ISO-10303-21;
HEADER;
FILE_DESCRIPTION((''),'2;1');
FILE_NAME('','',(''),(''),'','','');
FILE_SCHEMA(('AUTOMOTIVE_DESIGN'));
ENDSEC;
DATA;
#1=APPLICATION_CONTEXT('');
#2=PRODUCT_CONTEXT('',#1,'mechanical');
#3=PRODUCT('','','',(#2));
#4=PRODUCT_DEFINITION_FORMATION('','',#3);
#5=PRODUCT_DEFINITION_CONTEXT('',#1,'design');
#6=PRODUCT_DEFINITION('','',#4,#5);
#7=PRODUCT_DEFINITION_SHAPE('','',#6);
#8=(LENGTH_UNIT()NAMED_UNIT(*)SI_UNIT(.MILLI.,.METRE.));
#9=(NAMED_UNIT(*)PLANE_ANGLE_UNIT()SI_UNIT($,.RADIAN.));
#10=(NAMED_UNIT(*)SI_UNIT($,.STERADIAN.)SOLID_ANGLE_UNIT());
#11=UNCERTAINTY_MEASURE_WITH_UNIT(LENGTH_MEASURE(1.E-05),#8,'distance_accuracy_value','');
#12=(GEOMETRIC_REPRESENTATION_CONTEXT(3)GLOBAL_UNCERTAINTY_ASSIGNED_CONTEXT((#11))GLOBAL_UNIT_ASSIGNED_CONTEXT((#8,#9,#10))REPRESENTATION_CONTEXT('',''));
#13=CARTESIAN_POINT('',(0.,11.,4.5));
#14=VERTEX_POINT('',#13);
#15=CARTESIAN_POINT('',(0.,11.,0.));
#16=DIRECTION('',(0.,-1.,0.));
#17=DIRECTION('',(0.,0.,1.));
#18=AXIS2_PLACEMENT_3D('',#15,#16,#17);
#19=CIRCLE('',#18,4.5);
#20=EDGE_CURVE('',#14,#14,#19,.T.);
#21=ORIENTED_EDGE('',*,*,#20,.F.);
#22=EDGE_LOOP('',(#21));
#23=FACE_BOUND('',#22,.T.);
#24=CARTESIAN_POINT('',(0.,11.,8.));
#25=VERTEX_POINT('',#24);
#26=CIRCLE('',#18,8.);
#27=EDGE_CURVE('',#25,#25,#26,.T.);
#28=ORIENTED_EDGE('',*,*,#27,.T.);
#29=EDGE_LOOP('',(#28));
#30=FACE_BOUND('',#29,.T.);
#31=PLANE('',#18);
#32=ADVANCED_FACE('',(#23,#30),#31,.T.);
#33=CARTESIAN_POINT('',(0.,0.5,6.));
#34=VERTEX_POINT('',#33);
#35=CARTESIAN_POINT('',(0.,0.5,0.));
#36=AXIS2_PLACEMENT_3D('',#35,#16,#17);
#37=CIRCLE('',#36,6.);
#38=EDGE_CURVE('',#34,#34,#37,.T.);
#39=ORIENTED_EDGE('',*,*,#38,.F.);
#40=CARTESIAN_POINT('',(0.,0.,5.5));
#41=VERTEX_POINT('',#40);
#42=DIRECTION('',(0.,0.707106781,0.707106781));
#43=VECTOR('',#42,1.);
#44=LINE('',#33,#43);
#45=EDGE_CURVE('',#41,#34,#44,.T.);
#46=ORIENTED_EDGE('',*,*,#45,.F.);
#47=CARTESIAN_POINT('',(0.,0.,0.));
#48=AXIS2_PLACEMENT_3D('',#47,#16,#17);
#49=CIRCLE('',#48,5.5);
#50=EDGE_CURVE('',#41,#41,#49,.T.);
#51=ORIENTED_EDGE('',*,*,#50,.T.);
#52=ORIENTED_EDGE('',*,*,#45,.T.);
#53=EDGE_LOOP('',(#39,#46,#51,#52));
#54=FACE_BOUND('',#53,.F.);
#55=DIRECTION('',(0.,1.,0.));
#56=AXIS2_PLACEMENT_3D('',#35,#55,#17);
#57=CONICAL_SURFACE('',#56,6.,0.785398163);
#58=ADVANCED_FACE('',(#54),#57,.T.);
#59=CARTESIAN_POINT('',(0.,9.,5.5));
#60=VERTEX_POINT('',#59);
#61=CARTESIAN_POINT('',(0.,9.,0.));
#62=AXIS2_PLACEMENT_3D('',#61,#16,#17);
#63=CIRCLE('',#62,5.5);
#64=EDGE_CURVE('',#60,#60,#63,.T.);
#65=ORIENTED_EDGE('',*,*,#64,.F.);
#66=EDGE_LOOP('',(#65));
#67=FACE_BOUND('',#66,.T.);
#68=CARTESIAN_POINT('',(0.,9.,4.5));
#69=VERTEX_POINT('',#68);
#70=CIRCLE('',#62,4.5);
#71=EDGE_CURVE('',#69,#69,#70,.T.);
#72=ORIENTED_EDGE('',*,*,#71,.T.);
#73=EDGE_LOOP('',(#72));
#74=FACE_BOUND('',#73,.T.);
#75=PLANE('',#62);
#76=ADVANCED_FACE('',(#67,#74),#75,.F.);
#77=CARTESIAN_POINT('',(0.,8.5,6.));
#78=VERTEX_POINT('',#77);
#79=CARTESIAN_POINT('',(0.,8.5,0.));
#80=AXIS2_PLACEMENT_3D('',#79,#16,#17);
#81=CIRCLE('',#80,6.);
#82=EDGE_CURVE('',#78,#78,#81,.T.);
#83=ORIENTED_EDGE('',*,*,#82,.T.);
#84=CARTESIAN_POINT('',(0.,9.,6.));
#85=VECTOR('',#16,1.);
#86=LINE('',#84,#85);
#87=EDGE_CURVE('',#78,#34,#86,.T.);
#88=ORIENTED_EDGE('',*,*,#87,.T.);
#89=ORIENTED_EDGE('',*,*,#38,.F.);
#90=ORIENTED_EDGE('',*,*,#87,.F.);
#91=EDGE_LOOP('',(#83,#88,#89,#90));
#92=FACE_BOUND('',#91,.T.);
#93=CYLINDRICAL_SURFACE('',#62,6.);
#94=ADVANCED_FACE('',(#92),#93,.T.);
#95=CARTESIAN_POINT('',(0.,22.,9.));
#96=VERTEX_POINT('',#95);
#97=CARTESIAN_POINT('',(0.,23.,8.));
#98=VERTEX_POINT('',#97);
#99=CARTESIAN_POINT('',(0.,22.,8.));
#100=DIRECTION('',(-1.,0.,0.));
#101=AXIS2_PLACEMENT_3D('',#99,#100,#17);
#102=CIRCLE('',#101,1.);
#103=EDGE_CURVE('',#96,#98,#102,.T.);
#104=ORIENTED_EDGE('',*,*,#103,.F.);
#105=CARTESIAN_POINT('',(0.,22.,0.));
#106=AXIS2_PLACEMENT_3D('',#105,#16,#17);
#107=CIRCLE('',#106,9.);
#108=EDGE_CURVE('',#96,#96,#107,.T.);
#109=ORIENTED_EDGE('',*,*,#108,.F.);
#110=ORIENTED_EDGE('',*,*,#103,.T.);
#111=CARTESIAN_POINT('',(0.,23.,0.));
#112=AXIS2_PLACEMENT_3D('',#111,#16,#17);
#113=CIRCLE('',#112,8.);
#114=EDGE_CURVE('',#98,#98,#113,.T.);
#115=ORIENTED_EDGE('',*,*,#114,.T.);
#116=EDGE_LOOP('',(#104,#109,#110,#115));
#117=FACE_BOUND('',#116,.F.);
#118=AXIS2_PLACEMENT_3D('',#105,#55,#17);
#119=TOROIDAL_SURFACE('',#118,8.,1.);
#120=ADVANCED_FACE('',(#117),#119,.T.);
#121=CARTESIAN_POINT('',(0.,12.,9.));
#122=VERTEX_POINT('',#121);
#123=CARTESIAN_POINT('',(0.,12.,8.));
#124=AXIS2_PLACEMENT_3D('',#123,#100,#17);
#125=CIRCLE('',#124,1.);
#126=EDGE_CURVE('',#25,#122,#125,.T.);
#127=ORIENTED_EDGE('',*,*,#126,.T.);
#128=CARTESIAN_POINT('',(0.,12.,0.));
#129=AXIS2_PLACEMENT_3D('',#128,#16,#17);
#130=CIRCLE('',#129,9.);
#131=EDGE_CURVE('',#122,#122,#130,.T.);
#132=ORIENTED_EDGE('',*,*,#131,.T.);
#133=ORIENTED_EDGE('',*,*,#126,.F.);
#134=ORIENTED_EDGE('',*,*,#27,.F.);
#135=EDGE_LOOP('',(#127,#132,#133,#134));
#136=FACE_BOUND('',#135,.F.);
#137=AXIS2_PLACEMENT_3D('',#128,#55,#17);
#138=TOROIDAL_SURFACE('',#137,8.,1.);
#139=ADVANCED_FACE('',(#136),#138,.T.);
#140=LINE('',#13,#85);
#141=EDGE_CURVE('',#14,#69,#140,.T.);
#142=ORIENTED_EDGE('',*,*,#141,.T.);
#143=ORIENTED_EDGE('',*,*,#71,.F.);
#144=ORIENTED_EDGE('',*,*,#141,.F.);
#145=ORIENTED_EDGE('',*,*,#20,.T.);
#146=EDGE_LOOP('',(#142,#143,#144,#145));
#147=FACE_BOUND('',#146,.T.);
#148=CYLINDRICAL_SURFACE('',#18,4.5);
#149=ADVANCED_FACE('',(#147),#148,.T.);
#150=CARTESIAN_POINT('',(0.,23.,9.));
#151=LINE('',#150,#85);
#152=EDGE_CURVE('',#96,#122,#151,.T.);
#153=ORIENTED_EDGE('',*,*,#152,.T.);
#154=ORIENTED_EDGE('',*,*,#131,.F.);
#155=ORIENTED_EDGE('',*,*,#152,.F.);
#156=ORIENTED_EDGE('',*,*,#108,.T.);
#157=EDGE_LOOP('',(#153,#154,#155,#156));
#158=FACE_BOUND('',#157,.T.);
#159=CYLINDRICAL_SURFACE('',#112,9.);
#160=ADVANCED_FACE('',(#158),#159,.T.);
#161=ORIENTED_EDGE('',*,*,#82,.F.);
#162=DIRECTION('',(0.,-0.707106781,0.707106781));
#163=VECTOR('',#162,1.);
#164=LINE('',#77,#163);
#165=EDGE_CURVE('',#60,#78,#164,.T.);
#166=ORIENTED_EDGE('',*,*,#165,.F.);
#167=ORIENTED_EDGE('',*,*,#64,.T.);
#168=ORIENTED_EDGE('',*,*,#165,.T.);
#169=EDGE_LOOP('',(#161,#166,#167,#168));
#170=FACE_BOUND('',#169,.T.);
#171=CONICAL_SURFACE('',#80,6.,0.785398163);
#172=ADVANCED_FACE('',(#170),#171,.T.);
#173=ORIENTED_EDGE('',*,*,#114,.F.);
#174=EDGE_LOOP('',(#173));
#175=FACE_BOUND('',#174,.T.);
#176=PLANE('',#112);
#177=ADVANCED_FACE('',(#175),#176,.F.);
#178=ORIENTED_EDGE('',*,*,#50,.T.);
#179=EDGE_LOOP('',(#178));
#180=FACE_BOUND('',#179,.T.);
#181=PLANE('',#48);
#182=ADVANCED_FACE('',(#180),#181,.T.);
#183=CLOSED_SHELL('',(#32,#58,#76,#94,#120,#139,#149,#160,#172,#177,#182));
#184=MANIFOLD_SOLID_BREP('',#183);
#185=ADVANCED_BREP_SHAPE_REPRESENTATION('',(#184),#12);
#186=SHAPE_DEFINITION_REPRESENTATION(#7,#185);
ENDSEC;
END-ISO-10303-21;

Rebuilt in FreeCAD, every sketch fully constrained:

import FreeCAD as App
import Part
import Sketcher
Q = App.Units.Quantity


def edges_at(feature, points):
    """Names of the edges that pass closest to the given points."""
    edges = feature.Shape.Edges
    near = lambda p: min(range(len(edges)), key=lambda i: edges[i].distToShape(Part.Vertex(*p))[0])
    return sorted({f"Edge{near(p) + 1}" for p in points})

doc = App.newDocument("Part")
body = doc.addObject("PartDesign::Body", "Body")

# Sketch on YZ plane
sketch1 = body.newObject("Sketcher::SketchObject", "Sketch")
sketch1.AttachmentSupport = (doc.getObject("YZ_Plane"), [""])
sketch1.MapMode = "FlatFace"
sketch1.addGeometry([
    Part.LineSegment(App.Vector(0, 6, 0), App.Vector(0, 0, 0)),  # 0
    Part.LineSegment(App.Vector(0, 0, 0), App.Vector(23, 0, 0)),  # 1
    Part.LineSegment(App.Vector(23, 0, 0), App.Vector(23, 9, 0)),  # 2
    Part.LineSegment(App.Vector(23, 9, 0), App.Vector(11, 9, 0)),  # 3
    Part.LineSegment(App.Vector(11, 9, 0), App.Vector(11, 4.5, 0)),  # 4
    Part.LineSegment(App.Vector(11, 4.5, 0), App.Vector(9, 4.5, 0)),  # 5
    Part.LineSegment(App.Vector(9, 4.5, 0), App.Vector(9, 6, 0)),  # 6
    Part.LineSegment(App.Vector(9, 6, 0), App.Vector(0, 6, 0)),  # 7
], False)
sketch1.addConstraint([
    Sketcher.Constraint("Coincident", 0, 2, 1, 1),
    Sketcher.Constraint("Coincident", 1, 2, 2, 1),
    Sketcher.Constraint("Coincident", 2, 2, 3, 1),
    Sketcher.Constraint("Coincident", 3, 2, 4, 1),
    Sketcher.Constraint("Coincident", 4, 2, 5, 1),
    Sketcher.Constraint("Coincident", 5, 2, 6, 1),
    Sketcher.Constraint("Coincident", 6, 2, 7, 1),
    Sketcher.Constraint("Coincident", 7, 2, 0, 1),
    Sketcher.Constraint("Vertical", 0),
    Sketcher.Constraint("Horizontal", 1),
    Sketcher.Constraint("Vertical", 2),
    Sketcher.Constraint("Horizontal", 3),
    Sketcher.Constraint("Vertical", 4),
    Sketcher.Constraint("Horizontal", 5),
    Sketcher.Constraint("Vertical", 6),
    Sketcher.Constraint("Horizontal", 7),
    Sketcher.Constraint("Coincident", 0, 2, -1, 1),
    Sketcher.Constraint("Equal", 7, 2),
    Sketcher.Constraint("DistanceX", 1, 1, 1, 2, Q("23 mm")),
    Sketcher.Constraint("DistanceX", 3, 2, 3, 1, Q("12 mm")),
    Sketcher.Constraint("DistanceX", 5, 2, 5, 1, Q("2 mm")),
    Sketcher.Constraint("DistanceY", 0, 2, 0, 1, Q("6 mm")),
    Sketcher.Constraint("DistanceY", 4, 2, 4, 1, Q("4.5 mm")),
])
revolution = body.newObject("PartDesign::Revolution", "Revolution")
revolution.Profile = sketch1
revolution.ReferenceAxis = (sketch1, ["H_Axis"])
revolution.Angle = 360
doc.recompute()

chamfer = body.newObject("PartDesign::Chamfer", "Chamfer")
chamfer.Base = (revolution, edges_at(revolution, [(0, 0, -6), (0, 9, -6)]))
chamfer.Size = 0.5
doc.recompute()

fillet = body.newObject("PartDesign::Fillet", "Fillet")
fillet.Base = (chamfer, edges_at(chamfer, [(0, 11, -9), (0, 23, -9)]))
fillet.Radius = 1

doc.recompute()
